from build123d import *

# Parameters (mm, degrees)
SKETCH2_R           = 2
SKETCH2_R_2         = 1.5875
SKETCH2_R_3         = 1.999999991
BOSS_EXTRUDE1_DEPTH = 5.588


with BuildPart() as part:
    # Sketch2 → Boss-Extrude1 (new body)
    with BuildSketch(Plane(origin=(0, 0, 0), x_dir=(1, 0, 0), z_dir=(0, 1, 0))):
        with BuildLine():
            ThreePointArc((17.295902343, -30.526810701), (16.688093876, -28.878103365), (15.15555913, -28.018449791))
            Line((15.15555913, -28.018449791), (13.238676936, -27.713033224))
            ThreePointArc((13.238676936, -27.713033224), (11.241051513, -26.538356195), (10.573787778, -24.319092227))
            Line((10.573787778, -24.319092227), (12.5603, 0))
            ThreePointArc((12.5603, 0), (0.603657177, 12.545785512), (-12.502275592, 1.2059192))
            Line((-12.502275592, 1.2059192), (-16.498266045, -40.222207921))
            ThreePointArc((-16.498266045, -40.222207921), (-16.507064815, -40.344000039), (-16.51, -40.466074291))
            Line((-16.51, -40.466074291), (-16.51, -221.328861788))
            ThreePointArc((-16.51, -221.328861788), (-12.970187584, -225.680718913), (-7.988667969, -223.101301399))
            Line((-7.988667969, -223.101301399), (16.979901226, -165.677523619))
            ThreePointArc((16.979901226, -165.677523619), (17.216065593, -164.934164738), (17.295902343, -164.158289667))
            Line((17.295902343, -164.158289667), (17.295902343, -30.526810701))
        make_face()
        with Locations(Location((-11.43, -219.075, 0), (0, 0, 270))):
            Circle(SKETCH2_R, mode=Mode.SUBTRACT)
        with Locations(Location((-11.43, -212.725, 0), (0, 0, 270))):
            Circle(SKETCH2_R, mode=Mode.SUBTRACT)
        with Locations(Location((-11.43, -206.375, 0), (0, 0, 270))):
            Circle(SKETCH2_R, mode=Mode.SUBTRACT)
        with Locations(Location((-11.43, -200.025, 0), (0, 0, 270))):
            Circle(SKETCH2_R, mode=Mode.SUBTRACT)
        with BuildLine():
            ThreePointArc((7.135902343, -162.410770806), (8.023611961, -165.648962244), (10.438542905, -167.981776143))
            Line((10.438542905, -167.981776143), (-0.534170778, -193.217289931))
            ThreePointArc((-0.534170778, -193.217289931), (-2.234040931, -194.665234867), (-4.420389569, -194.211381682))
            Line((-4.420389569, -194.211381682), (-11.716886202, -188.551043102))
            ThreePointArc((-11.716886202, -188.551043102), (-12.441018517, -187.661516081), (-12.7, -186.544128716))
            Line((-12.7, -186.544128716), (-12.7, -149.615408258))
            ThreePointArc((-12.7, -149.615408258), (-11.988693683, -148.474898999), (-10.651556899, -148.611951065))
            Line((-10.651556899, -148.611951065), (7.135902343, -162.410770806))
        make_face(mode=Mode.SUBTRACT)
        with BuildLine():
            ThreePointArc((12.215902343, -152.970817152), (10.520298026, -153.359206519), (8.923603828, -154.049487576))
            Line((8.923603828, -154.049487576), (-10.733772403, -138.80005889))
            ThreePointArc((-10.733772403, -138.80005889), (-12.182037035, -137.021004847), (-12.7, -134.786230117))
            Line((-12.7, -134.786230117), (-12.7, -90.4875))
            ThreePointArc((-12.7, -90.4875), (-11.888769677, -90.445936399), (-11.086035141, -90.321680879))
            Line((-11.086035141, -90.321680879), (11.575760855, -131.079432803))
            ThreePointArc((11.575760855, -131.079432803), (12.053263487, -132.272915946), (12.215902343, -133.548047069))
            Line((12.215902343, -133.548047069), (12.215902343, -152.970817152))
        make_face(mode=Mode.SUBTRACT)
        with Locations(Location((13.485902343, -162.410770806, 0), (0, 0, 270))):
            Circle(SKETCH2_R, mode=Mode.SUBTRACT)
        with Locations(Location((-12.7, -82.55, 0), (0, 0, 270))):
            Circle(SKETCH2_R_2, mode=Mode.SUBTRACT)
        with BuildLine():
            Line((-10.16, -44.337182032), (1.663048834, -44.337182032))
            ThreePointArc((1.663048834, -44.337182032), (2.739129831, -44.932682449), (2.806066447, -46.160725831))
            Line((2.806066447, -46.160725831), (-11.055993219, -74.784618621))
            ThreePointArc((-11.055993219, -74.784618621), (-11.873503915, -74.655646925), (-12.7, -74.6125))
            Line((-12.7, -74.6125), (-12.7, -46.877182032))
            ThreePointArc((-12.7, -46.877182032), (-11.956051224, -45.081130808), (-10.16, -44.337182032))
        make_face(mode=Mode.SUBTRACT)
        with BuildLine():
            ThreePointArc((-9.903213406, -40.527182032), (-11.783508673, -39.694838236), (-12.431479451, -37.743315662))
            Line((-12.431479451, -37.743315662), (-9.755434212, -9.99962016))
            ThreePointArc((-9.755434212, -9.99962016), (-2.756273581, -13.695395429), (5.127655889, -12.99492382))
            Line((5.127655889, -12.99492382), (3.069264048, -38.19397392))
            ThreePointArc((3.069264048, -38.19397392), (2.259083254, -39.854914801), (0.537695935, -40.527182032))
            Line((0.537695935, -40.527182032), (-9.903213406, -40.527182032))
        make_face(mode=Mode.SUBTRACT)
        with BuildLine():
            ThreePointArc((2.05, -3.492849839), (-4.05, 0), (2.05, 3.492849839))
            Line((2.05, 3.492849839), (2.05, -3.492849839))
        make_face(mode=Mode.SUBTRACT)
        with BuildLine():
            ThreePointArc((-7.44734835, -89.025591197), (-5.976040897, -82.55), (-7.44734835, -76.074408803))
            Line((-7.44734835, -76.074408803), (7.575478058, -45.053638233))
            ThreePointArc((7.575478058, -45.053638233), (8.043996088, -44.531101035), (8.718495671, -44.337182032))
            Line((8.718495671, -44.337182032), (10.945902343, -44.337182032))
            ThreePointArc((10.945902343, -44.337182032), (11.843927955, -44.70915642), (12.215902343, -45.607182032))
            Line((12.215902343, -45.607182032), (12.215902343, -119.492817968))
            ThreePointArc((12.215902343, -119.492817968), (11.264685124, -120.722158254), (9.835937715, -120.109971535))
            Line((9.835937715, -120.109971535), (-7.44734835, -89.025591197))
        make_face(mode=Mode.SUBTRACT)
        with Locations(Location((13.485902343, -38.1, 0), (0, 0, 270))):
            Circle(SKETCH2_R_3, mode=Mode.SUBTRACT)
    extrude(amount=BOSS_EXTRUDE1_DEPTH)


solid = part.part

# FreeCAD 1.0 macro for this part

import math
import FreeCAD as App
import Part
import Sketcher
from FreeCAD import Vector
Q = App.Units.Quantity

doc = App.newDocument("Part")
body = doc.addObject("PartDesign::Body", "Body")

# Sketch on XZ plane
sketch1 = body.newObject("Sketcher::SketchObject", "Sketch")
sketch1.AttachmentSupport = (doc.getObject("XZ_Plane"), [""])
sketch1.MapMode = "FlatFace"
sketch1.addGeometry([
    Part.ArcOfCircle(Part.Circle(Vector(14.76, 30.53, 0), Vector(0, 0, 1), 2.54), math.radians(-81), math.radians(0)),  # 0
    Part.LineSegment(Vector(15.16, 28.02, 0), Vector(13.24, 27.71, 0)),  # 1
    Part.ArcOfCircle(Part.Circle(Vector(13.74, 24.58, 0), Vector(0, 0, 1), 3.18), math.radians(99), math.radians(185)),  # 2
    Part.LineSegment(Vector(10.57, 24.32, 0), Vector(12.56, 0, 0)),  # 3
    Part.ArcOfCircle(Part.Circle(Vector(0, 0, 0), Vector(0, 0, 1), 12.56), math.radians(-174), math.radians(0)),  # 4
    Part.LineSegment(Vector(-12.5, -1.21, 0), Vector(-16.5, 40.22, 0)),  # 5
    Part.ArcOfCircle(Part.Circle(Vector(-13.97, 40.47, 0), Vector(0, 0, 1), 2.54), math.radians(-180), math.radians(-174.49)),  # 6
    Part.LineSegment(Vector(-16.51, 40.47, 0), Vector(-16.51, 221.33, 0)),  # 7
    Part.ArcOfCircle(Part.Circle(Vector(-12.06, 221.33, 0), Vector(0, 0, 1), 4.45), math.radians(23), math.radians(180)),  # 8
    Part.LineSegment(Vector(-7.99, 223.1, 0), Vector(16.98, 165.68, 0)),  # 9
    Part.ArcOfCircle(Part.Circle(Vector(13.49, 164.16, 0), Vector(0, 0, 1), 3.81), math.radians(0), math.radians(24)),  # 10
    Part.LineSegment(Vector(17.3, 164.16, 0), Vector(17.3, 30.53, 0)),  # 11
    Part.Circle(Vector(-11.43, 219.07, 0), Vector(0, 0, 1), 2),  # 12
    Part.Circle(Vector(-11.43, 212.72, 0), Vector(0, 0, 1), 2),  # 13
    Part.Circle(Vector(-11.43, 206.38, 0), Vector(0, 0, 1), 2),  # 14
    Part.Circle(Vector(-11.43, 200.03, 0), Vector(0, 0, 1), 2),  # 15
    Part.LineSegment(Vector(-10.65, 148.61, 0), Vector(7.14, 162.41, 0)),  # 16
    Part.ArcOfCircle(Part.Circle(Vector(13.49, 162.41, 0), Vector(0, 0, 1), 6.35), math.radians(119), math.radians(180)),  # 17
    Part.LineSegment(Vector(10.44, 167.98, 0), Vector(-0.53, 193.22, 0)),  # 18
    Part.ArcOfCircle(Part.Circle(Vector(-2.86, 192.2, 0), Vector(0, 0, 1), 2.54), math.radians(24), math.radians(128)),  # 19
    Part.LineSegment(Vector(-4.42, 194.21, 0), Vector(-11.72, 188.55, 0)),  # 20
    Part.ArcOfCircle(Part.Circle(Vector(-10.16, 186.54, 0), Vector(0, 0, 1), 2.54), math.radians(128), math.radians(180)),  # 21
    Part.LineSegment(Vector(-12.7, 186.54, 0), Vector(-12.7, 149.62, 0)),  # 22
    Part.ArcOfCircle(Part.Circle(Vector(-11.43, 149.62, 0), Vector(0, 0, 1), 1.27), math.radians(180), math.radians(308)),  # 23
    Part.LineSegment(Vector(12.22, 133.55, 0), Vector(12.22, 152.97, 0)),  # 24
    Part.ArcOfCircle(Part.Circle(Vector(13.49, 162.41, 0), Vector(0, 0, 1), 9.52), math.radians(-119), math.radians(-98)),  # 25
    Part.LineSegment(Vector(8.92, 154.05, 0), Vector(-10.73, 138.8, 0)),  # 26
    Part.ArcOfCircle(Part.Circle(Vector(-7.62, 134.79, 0), Vector(0, 0, 1), 5.08), math.radians(128), math.radians(180)),  # 27
    Part.LineSegment(Vector(-12.7, 134.79, 0), Vector(-12.7, 90.49, 0)),  # 28
    Part.ArcOfCircle(Part.Circle(Vector(-12.7, 82.55, 0), Vector(0, 0, 1), 7.94), math.radians(78.27), math.radians(90)),  # 29
    Part.LineSegment(Vector(-11.09, 90.32, 0), Vector(11.58, 131.08, 0)),  # 30
    Part.ArcOfCircle(Part.Circle(Vector(7.14, 133.55, 0), Vector(0, 0, 1), 5.08), math.radians(-29), math.radians(0)),  # 31
    Part.Circle(Vector(13.49, 162.41, 0), Vector(0, 0, 1), 2),  # 32
    Part.Circle(Vector(-12.7, 82.55, 0), Vector(0, 0, 1), 1.59),  # 33
    Part.ArcOfCircle(Part.Circle(Vector(-10.16, 46.88, 0), Vector(0, 0, 1), 2.54), math.radians(-180), math.radians(-90)),  # 34
    Part.LineSegment(Vector(-10.16, 44.34, 0), Vector(1.66, 44.34, 0)),  # 35
    Part.ArcOfCircle(Part.Circle(Vector(1.66, 45.61, 0), Vector(0, 0, 1), 1.27), math.radians(-90), math.radians(26)),  # 36
    Part.LineSegment(Vector(2.81, 46.16, 0), Vector(-11.06, 74.78, 0)),  # 37
    Part.ArcOfCircle(Part.Circle(Vector(-12.7, 82.55, 0), Vector(0, 0, 1), 7.94), math.radians(-90), math.radians(-78.05)),  # 38
    Part.LineSegment(Vector(-12.7, 74.61, 0), Vector(-12.7, 46.88, 0)),  # 39
    Part.LineSegment(Vector(0.54, 40.53, 0), Vector(-9.9, 40.53, 0)),  # 40
    Part.ArcOfCircle(Part.Circle(Vector(-9.9, 37.99, 0), Vector(0, 0, 1), 2.54), math.radians(90), math.radians(186)),  # 41
    Part.LineSegment(Vector(-12.43, 37.74, 0), Vector(-9.76, 10, 0)),  # 42
    Part.ArcOfCircle(Part.Circle(Vector(0, 0, 0), Vector(0, 0, 1), 13.97), math.radians(68), math.radians(134)),  # 43
    Part.LineSegment(Vector(5.13, 12.99, 0), Vector(3.07, 38.19, 0)),  # 44
    Part.ArcOfCircle(Part.Circle(Vector(0.54, 37.99, 0), Vector(0, 0, 1), 2.54), math.radians(5), math.radians(90)),  # 45
    Part.LineSegment(Vector(2.05, -3.49, 0), Vector(2.05, 3.49, 0)),  # 46
    Part.ArcOfCircle(Part.Circle(Vector(0, 0, 0), Vector(0, 0, 1), 4.05), math.radians(60), math.radians(300)),  # 47
    Part.LineSegment(Vector(9.84, 120.11, 0), Vector(-7.45, 89.03, 0)),  # 48
    Part.ArcOfCircle(Part.Circle(Vector(-20.96, 82.55, 0), Vector(0, 0, 1), 14.99), math.radians(-26), math.radians(26)),  # 49
    Part.LineSegment(Vector(-7.45, 76.07, 0), Vector(7.58, 45.05, 0)),  # 50
    Part.ArcOfCircle(Part.Circle(Vector(8.72, 45.61, 0), Vector(0, 0, 1), 1.27), math.radians(-154), math.radians(-90)),  # 51
    Part.LineSegment(Vector(8.72, 44.34, 0), Vector(10.95, 44.34, 0)),  # 52
    Part.ArcOfCircle(Part.Circle(Vector(10.95, 45.61, 0), Vector(0, 0, 1), 1.27), math.radians(-90), math.radians(0)),  # 53
    Part.LineSegment(Vector(12.22, 45.61, 0), Vector(12.22, 119.49, 0)),  # 54
    Part.ArcOfCircle(Part.Circle(Vector(10.95, 119.49, 0), Vector(0, 0, 1), 1.27), math.radians(0), math.radians(151)),  # 55
    Part.Circle(Vector(13.49, 38.1, 0), Vector(0, 0, 1), 2),  # 56
], False)
sketch1.addConstraint([
    Sketcher.Constraint("Tangent", 0, 1, 1, 1),
    Sketcher.Constraint("Tangent", 1, 2, 2, 1),
    Sketcher.Constraint("Tangent", 2, 2, 3, 1),
    Sketcher.Constraint("Coincident", 3, 2, 4, 2),
    Sketcher.Constraint("Tangent", 4, 1, 5, 1),
    Sketcher.Constraint("Tangent", 5, 2, 6, 2),
    Sketcher.Constraint("Tangent", 6, 1, 7, 1),
    Sketcher.Constraint("Tangent", 7, 2, 8, 2),
    Sketcher.Constraint("Tangent", 8, 1, 9, 1),
    Sketcher.Constraint("Tangent", 9, 2, 10, 2),
    Sketcher.Constraint("Tangent", 10, 1, 11, 1),
    Sketcher.Constraint("Tangent", 11, 2, 0, 2),
    Sketcher.Constraint("Coincident", 16, 2, 17, 2),
    Sketcher.Constraint("Coincident", 17, 1, 18, 1),
    Sketcher.Constraint("Tangent", 18, 2, 19, 1),
    Sketcher.Constraint("Tangent", 19, 2, 20, 1),
    Sketcher.Constraint("Tangent", 20, 2, 21, 1),
    Sketcher.Constraint("Tangent", 21, 2, 22, 1),
    Sketcher.Constraint("Tangent", 22, 2, 23, 1),
    Sketcher.Constraint("Tangent", 23, 2, 16, 1),
    Sketcher.Constraint("Coincident", 24, 2, 25, 2),
    Sketcher.Constraint("Coincident", 25, 1, 26, 1),
    Sketcher.Constraint("Tangent", 26, 2, 27, 1),
    Sketcher.Constraint("Tangent", 27, 2, 28, 1),
    Sketcher.Constraint("Coincident", 28, 2, 29, 2),
    Sketcher.Constraint("Coincident", 29, 1, 30, 1),
    Sketcher.Constraint("Tangent", 30, 2, 31, 1),
    Sketcher.Constraint("Tangent", 31, 2, 24, 1),
    Sketcher.Constraint("Tangent", 34, 2, 35, 1),
    Sketcher.Constraint("Tangent", 35, 2, 36, 1),
    Sketcher.Constraint("Tangent", 36, 2, 37, 1),
    Sketcher.Constraint("Coincident", 37, 2, 38, 2),
    Sketcher.Constraint("Coincident", 38, 1, 39, 1),
    Sketcher.Constraint("Tangent", 39, 2, 34, 1),
    Sketcher.Constraint("Tangent", 40, 2, 41, 1),
    Sketcher.Constraint("Tangent", 41, 2, 42, 1),
    Sketcher.Constraint("Coincident", 42, 2, 43, 2),
    Sketcher.Constraint("Coincident", 43, 1, 44, 1),
    Sketcher.Constraint("Tangent", 44, 2, 45, 1),
    Sketcher.Constraint("Tangent", 45, 2, 40, 1),
    Sketcher.Constraint("Coincident", 46, 1, 47, 2),
    Sketcher.Constraint("Coincident", 47, 1, 46, 2),
    Sketcher.Constraint("Coincident", 48, 2, 49, 2),
    Sketcher.Constraint("Coincident", 49, 1, 50, 1),
    Sketcher.Constraint("Tangent", 50, 2, 51, 1),
    Sketcher.Constraint("Tangent", 51, 2, 52, 1),
    Sketcher.Constraint("Tangent", 52, 2, 53, 1),
    Sketcher.Constraint("Tangent", 53, 2, 54, 1),
    Sketcher.Constraint("Tangent", 54, 2, 55, 1),
    Sketcher.Constraint("Tangent", 55, 2, 48, 1),
    Sketcher.Constraint("Vertical", 7),
    Sketcher.Constraint("Vertical", 11),
    Sketcher.Constraint("Vertical", 22),
    Sketcher.Constraint("Vertical", 24),
    Sketcher.Constraint("Vertical", 28),
    Sketcher.Constraint("Horizontal", 35),
    Sketcher.Constraint("Vertical", 39),
    Sketcher.Constraint("Horizontal", 40),
    Sketcher.Constraint("Vertical", 46),
    Sketcher.Constraint("Horizontal", 52),
    Sketcher.Constraint("Vertical", 54),
    Sketcher.Constraint("Coincident", 4, 3, -1, 1),
    Sketcher.Constraint("Coincident", 43, 3, -1, 1),
    Sketcher.Constraint("Coincident", 47, 3, -1, 1),
    Sketcher.Constraint("Coincident", 25, 3, 17, 3),
    Sketcher.Constraint("Coincident", 32, 3, 17, 3),
    Sketcher.Constraint("Coincident", 33, 3, 29, 3),
    Sketcher.Constraint("Coincident", 38, 3, 29, 3),
    Sketcher.Constraint("Equal", 0, 6),
    Sketcher.Constraint("Equal", 12, 13),
    Sketcher.Constraint("Equal", 13, 14),
    Sketcher.Constraint("Equal", 14, 15),
    Sketcher.Constraint("Equal", 6, 19),
    Sketcher.Constraint("Equal", 19, 21),
    Sketcher.Constraint("Equal", 27, 31),
    Sketcher.Constraint("Equal", 15, 32),
    Sketcher.Constraint("Equal", 21, 34),
    Sketcher.Constraint("Equal", 23, 36),
    Sketcher.Constraint("Equal", 29, 38),
    Sketcher.Constraint("Equal", 34, 41),
    Sketcher.Constraint("Equal", 41, 45),
    Sketcher.Constraint("Equal", 36, 51),
    Sketcher.Constraint("Equal", 51, 53),
    Sketcher.Constraint("Equal", 53, 55),
    Sketcher.Constraint("Equal", 32, 56),
    Sketcher.Constraint("PointOnObject", 3, 2, -1),
    Sketcher.Constraint("Parallel", 9, 18),
    Sketcher.Constraint("Parallel", 16, 20),
    Sketcher.Constraint("Parallel", 20, 26),
    Sketcher.Constraint("Parallel", 5, 42),
    Sketcher.Constraint("Parallel", 3, 44),
    Sketcher.Constraint("Parallel", 30, 48),
    Sketcher.Constraint("Parallel", 37, 50),
    Sketcher.Constraint("Horizontal", 38, 3, 49, 3),
    Sketcher.Constraint("Horizontal", 36, 3, 51, 3),
    Sketcher.Constraint("Horizontal", 32, 3, 16, 2),
    Sketcher.Constraint("Vertical", 12, 3, 13, 3),
    Sketcher.Constraint("Vertical", 13, 3, 14, 3),
    Sketcher.Constraint("Vertical", 14, 3, 15, 3),
    Sketcher.Constraint("Vertical", 10, 3, 17, 3),
    Sketcher.Constraint("Vertical", 15, 3, 23, 3),
    Sketcher.Constraint("Vertical", 21, 3, 34, 3),
    Sketcher.Constraint("Vertical", 32, 3, 56, 3),
    Sketcher.Constraint("Vertical", 31, 3, 16, 2),
    Sketcher.Constraint("Vertical", 38, 3, 21, 2),
    Sketcher.Constraint("Vertical", 22, 2, 27, 2),
    Sketcher.Constraint("Vertical", 48, 2, 49, 1),
    Sketcher.Constraint("Vertical", 31, 2, 53, 2),
    Sketcher.Constraint("Radius", 0, Q("0.1 in")),
    Sketcher.Constraint("Radius", 27, Q("0.2 in")),
    Sketcher.Constraint("Radius", 10, Q("0.15 in")),
    Sketcher.Constraint("Radius", 17, Q("0.25 in")),
    Sketcher.Constraint("Radius", 23, Q("0.05 in")),
    Sketcher.Constraint("Radius", 43, Q("0.55 in")),
    Sketcher.Constraint("Radius", 49, Q("0.59 in")),
    Sketcher.Constraint("Diameter", 33, Q("0.125 in")),
    Sketcher.Constraint("Radius", 2, Q("0.125 in")),
    Sketcher.Constraint("Radius", 8, Q("0.175 in")),
    Sketcher.Constraint("Radius", 25, Q("0.375 in")),
    Sketcher.Constraint("Radius", 29, Q("0.3125 in")),
    Sketcher.Constraint("DistanceX", 21, 3, -1, 1, Q("0.4 in")),
    Sketcher.Constraint("DistanceY", -1, 1, 56, 3, Q("1.5 in")),
    Sketcher.Constraint("Angle", 9, Q("-66.5 deg")),
    Sketcher.Constraint("Radius", 4, Q("0.4945 in")),
    Sketcher.Constraint("Diameter", 12, Q("4 mm")),
    Sketcher.Constraint("DistanceX", 6, 3, -1, 1, Q("0.55 in")),
    Sketcher.Constraint("DistanceY", -1, 1, 29, 3, Q("3.25 in")),
    Sketcher.Constraint("Radius", 47, Q("4.05 mm")),
    Sketcher.Constraint("DistanceY", -1, 1, 12, 3, Q("8.625 in")),
    Sketcher.Constraint("DistanceY", -1, 1, 13, 3, Q("8.375 in")),
    Sketcher.Constraint("DistanceY", -1, 1, 14, 3, Q("8.125 in")),
    Sketcher.Constraint("DistanceY", -1, 1, 15, 3, Q("7.875 in")),
    Sketcher.Constraint("DistanceY", 46, 1, 46, 2, Q("6.9857 mm")),
    Sketcher.Constraint("DistanceX", -1, 1, 9, 2, Q("0.6685 in")),
    Sketcher.Constraint("Distance", 5, Q("41.6204 mm")),
    Sketcher.Constraint("DistanceX", 35, 1, 35, 2, Q("11.823049 mm")),
    Sketcher.Constraint("DistanceX", 40, 2, 40, 1, Q("10.440909 mm")),
    Sketcher.Constraint("DistanceY", 11, 2, 11, 1, Q("133.631479 mm")),
    Sketcher.Constraint("DistanceY", 22, 2, 22, 1, Q("36.92872 mm")),
    Sketcher.Constraint("DistanceY", 24, 1, 24, 2, Q("19.42277 mm")),
    Sketcher.Constraint("DistanceY", 28, 2, 28, 1, Q("44.29873 mm")),
    Sketcher.Constraint("DistanceY", -1, 1, 8, 1, Q("223.101301 mm")),
    Sketcher.Constraint("Distance", 1, Q("1.941061 mm")),
    Sketcher.Constraint("Distance", 3, Q("24.400092 mm")),
    Sketcher.Constraint("Distance", 18, Q("27.517842 mm")),
    Sketcher.Constraint("Distance", 30, Q("46.634229 mm")),
    Sketcher.Constraint("Distance", 44, Q("25.28298 mm")),
    Sketcher.Constraint("Distance", 50, Q("34.466992 mm")),
    Sketcher.Constraint("DistanceX", 52, 1, 52, 2, Q("2.227407 mm")),
    Sketcher.Constraint("DistanceY", 39, 2, 39, 1, Q("27.735318 mm")),
    Sketcher.Constraint("DistanceY", 54, 1, 54, 2, Q("73.885636 mm")),
    Sketcher.Constraint("DistanceY", -1, 1, 17, 3, Q("162.410771 mm")),
    Sketcher.Constraint("DistanceY", -1, 1, 21, 3, Q("186.544129 mm")),
    Sketcher.Constraint("DistanceX", 41, 2, -1, 1, Q("12.431479 mm")),
])
pad1 = body.newObject("PartDesign::Pad", "Pad")
pad1.Profile = sketch1
pad1.Length = Q("0.22 in")
pad1.Reversed = True

doc.recompute()
